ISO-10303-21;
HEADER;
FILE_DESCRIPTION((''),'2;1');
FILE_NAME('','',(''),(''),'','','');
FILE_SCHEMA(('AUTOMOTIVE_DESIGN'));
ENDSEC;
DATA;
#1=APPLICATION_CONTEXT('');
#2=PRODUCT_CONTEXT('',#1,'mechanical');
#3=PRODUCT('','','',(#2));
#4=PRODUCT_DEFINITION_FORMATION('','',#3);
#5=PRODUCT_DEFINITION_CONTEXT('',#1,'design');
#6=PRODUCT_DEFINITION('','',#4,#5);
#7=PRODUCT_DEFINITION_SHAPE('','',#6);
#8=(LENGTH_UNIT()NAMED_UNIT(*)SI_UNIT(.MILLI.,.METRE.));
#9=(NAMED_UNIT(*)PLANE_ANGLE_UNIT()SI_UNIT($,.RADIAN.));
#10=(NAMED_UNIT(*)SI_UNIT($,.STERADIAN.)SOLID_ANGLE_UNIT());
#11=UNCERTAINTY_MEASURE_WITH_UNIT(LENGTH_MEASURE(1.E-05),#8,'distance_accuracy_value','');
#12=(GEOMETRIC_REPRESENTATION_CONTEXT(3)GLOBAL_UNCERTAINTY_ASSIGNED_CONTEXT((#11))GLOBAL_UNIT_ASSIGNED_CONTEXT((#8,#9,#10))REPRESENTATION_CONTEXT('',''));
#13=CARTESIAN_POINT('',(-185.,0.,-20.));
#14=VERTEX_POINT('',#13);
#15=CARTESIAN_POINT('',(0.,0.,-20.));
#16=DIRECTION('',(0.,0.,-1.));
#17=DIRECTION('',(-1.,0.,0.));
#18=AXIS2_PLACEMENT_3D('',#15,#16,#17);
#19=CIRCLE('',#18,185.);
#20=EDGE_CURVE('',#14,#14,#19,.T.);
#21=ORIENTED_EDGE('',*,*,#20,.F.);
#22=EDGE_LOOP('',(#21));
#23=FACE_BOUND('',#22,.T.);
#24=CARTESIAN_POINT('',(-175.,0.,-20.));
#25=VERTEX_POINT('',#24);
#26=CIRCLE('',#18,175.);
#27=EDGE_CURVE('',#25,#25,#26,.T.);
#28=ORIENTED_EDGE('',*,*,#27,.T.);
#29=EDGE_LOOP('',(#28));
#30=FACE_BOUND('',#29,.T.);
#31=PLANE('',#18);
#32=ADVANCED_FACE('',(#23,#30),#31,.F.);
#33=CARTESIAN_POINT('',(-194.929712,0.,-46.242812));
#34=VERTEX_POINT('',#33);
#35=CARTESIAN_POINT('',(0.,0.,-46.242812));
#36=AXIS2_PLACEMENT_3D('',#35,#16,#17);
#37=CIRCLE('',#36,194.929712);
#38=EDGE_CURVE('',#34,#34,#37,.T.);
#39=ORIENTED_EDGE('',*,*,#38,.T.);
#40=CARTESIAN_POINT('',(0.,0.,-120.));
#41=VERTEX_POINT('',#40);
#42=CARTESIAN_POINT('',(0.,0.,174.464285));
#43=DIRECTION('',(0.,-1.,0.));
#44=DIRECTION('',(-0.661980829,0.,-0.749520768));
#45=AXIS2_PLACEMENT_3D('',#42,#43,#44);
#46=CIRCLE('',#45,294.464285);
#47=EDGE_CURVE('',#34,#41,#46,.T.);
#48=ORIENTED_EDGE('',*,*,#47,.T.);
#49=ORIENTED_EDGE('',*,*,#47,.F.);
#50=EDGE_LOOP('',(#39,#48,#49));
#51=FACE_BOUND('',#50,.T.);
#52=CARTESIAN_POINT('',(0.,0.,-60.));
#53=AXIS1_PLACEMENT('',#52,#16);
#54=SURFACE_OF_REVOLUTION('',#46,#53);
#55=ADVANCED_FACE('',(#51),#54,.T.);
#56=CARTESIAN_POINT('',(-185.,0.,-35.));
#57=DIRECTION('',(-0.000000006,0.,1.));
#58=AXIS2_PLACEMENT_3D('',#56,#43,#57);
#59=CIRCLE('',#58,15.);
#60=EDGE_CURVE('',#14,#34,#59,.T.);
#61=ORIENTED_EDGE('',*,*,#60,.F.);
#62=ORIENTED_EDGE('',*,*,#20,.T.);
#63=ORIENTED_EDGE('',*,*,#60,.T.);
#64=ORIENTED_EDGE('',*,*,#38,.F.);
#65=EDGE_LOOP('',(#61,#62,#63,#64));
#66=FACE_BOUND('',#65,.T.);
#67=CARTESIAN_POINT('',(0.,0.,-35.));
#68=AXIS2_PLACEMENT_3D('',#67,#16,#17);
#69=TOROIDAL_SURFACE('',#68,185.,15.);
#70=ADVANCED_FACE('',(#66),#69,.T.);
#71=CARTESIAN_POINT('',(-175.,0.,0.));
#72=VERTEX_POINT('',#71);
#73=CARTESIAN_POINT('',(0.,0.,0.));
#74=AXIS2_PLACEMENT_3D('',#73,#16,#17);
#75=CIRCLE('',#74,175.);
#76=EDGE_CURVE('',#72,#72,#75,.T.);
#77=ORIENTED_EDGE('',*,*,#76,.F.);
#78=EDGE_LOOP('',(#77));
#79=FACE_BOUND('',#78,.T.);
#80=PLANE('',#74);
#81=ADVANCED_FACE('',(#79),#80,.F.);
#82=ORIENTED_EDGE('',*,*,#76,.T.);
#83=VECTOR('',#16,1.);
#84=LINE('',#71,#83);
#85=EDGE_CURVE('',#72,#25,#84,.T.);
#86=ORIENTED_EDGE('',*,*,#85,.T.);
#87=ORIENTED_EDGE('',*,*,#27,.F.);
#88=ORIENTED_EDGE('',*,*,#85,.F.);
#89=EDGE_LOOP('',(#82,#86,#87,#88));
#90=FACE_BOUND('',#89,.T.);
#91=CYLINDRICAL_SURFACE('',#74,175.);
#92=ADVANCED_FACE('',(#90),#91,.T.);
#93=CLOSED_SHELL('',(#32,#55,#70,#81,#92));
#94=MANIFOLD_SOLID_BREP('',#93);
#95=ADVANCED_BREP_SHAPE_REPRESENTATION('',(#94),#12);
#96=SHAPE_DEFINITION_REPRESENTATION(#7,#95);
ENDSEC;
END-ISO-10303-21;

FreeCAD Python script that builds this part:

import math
import FreeCAD as App
import Part
import Sketcher

V = App.Vector

doc = App.newDocument("Part")
body = doc.addObject("PartDesign::Body", "Body")

# Sketch on XZ plane
sketch1 = body.newObject("Sketcher::SketchObject", "Sketch")
sketch1.AttachmentSupport = (doc.getObject("XZ_Plane"), [""])
sketch1.MapMode = "FlatFace"
sketch1.addGeometry([
    Part.LineSegment(V(0, -120, 0), V(0, 0, 0)),  # 0
    Part.LineSegment(V(0, 0, 0), V(-175, 0, 0)),  # 1
    Part.LineSegment(V(-175, 0, 0), V(-175, -20, 0)),  # 2
    Part.LineSegment(V(-175, -20, 0), V(-185, -20, 0)),  # 3
    Part.ArcOfCircle(Part.Circle(V(-185, -35, 0), V(0, 0, 1), 15), math.radians(90), math.radians(229)),  # 4
    Part.ArcOfCircle(Part.Circle(V(0, 174, 0), V(0, 0, 1), 294), math.radians(-131), math.radians(-90)),  # 5
], False)
sketch1.addConstraint([
    Sketcher.Constraint("Coincident", 0, 2, 1, 1),
    Sketcher.Constraint("Coincident", 1, 2, 2, 1),
    Sketcher.Constraint("Coincident", 2, 2, 3, 1),
    Sketcher.Constraint("Tangent", 3, 2, 4, 1),
    Sketcher.Constraint("Tangent", 4, 2, 5, 1),
    Sketcher.Constraint("Coincident", 5, 2, 0, 1),
    Sketcher.Constraint("Vertical", 0),
    Sketcher.Constraint("Horizontal", 1),
    Sketcher.Constraint("Vertical", 2),
    Sketcher.Constraint("Horizontal", 3),
    Sketcher.Constraint("Coincident", 0, 2, -1, 1),
    Sketcher.Constraint("PointOnObject", 5, 3, -2),
    Sketcher.Constraint("Radius", 4, 15.0),
    Sketcher.Constraint("DistanceX", 1, 2, 1, 1, 175.0),
    Sketcher.Constraint("DistanceX", 3, 2, 3, 1, 10.0),
    Sketcher.Constraint("DistanceY", 0, 1, 0, 2, 120.0),
    Sketcher.Constraint("DistanceY", 2, 2, 2, 1, 20.0),
])
revolution = body.newObject("PartDesign::Revolution", "Revolution")
revolution.Profile = sketch1
revolution.ReferenceAxis = (sketch1, ["V_Axis"])
revolution.Angle = 360

doc.recompute()
